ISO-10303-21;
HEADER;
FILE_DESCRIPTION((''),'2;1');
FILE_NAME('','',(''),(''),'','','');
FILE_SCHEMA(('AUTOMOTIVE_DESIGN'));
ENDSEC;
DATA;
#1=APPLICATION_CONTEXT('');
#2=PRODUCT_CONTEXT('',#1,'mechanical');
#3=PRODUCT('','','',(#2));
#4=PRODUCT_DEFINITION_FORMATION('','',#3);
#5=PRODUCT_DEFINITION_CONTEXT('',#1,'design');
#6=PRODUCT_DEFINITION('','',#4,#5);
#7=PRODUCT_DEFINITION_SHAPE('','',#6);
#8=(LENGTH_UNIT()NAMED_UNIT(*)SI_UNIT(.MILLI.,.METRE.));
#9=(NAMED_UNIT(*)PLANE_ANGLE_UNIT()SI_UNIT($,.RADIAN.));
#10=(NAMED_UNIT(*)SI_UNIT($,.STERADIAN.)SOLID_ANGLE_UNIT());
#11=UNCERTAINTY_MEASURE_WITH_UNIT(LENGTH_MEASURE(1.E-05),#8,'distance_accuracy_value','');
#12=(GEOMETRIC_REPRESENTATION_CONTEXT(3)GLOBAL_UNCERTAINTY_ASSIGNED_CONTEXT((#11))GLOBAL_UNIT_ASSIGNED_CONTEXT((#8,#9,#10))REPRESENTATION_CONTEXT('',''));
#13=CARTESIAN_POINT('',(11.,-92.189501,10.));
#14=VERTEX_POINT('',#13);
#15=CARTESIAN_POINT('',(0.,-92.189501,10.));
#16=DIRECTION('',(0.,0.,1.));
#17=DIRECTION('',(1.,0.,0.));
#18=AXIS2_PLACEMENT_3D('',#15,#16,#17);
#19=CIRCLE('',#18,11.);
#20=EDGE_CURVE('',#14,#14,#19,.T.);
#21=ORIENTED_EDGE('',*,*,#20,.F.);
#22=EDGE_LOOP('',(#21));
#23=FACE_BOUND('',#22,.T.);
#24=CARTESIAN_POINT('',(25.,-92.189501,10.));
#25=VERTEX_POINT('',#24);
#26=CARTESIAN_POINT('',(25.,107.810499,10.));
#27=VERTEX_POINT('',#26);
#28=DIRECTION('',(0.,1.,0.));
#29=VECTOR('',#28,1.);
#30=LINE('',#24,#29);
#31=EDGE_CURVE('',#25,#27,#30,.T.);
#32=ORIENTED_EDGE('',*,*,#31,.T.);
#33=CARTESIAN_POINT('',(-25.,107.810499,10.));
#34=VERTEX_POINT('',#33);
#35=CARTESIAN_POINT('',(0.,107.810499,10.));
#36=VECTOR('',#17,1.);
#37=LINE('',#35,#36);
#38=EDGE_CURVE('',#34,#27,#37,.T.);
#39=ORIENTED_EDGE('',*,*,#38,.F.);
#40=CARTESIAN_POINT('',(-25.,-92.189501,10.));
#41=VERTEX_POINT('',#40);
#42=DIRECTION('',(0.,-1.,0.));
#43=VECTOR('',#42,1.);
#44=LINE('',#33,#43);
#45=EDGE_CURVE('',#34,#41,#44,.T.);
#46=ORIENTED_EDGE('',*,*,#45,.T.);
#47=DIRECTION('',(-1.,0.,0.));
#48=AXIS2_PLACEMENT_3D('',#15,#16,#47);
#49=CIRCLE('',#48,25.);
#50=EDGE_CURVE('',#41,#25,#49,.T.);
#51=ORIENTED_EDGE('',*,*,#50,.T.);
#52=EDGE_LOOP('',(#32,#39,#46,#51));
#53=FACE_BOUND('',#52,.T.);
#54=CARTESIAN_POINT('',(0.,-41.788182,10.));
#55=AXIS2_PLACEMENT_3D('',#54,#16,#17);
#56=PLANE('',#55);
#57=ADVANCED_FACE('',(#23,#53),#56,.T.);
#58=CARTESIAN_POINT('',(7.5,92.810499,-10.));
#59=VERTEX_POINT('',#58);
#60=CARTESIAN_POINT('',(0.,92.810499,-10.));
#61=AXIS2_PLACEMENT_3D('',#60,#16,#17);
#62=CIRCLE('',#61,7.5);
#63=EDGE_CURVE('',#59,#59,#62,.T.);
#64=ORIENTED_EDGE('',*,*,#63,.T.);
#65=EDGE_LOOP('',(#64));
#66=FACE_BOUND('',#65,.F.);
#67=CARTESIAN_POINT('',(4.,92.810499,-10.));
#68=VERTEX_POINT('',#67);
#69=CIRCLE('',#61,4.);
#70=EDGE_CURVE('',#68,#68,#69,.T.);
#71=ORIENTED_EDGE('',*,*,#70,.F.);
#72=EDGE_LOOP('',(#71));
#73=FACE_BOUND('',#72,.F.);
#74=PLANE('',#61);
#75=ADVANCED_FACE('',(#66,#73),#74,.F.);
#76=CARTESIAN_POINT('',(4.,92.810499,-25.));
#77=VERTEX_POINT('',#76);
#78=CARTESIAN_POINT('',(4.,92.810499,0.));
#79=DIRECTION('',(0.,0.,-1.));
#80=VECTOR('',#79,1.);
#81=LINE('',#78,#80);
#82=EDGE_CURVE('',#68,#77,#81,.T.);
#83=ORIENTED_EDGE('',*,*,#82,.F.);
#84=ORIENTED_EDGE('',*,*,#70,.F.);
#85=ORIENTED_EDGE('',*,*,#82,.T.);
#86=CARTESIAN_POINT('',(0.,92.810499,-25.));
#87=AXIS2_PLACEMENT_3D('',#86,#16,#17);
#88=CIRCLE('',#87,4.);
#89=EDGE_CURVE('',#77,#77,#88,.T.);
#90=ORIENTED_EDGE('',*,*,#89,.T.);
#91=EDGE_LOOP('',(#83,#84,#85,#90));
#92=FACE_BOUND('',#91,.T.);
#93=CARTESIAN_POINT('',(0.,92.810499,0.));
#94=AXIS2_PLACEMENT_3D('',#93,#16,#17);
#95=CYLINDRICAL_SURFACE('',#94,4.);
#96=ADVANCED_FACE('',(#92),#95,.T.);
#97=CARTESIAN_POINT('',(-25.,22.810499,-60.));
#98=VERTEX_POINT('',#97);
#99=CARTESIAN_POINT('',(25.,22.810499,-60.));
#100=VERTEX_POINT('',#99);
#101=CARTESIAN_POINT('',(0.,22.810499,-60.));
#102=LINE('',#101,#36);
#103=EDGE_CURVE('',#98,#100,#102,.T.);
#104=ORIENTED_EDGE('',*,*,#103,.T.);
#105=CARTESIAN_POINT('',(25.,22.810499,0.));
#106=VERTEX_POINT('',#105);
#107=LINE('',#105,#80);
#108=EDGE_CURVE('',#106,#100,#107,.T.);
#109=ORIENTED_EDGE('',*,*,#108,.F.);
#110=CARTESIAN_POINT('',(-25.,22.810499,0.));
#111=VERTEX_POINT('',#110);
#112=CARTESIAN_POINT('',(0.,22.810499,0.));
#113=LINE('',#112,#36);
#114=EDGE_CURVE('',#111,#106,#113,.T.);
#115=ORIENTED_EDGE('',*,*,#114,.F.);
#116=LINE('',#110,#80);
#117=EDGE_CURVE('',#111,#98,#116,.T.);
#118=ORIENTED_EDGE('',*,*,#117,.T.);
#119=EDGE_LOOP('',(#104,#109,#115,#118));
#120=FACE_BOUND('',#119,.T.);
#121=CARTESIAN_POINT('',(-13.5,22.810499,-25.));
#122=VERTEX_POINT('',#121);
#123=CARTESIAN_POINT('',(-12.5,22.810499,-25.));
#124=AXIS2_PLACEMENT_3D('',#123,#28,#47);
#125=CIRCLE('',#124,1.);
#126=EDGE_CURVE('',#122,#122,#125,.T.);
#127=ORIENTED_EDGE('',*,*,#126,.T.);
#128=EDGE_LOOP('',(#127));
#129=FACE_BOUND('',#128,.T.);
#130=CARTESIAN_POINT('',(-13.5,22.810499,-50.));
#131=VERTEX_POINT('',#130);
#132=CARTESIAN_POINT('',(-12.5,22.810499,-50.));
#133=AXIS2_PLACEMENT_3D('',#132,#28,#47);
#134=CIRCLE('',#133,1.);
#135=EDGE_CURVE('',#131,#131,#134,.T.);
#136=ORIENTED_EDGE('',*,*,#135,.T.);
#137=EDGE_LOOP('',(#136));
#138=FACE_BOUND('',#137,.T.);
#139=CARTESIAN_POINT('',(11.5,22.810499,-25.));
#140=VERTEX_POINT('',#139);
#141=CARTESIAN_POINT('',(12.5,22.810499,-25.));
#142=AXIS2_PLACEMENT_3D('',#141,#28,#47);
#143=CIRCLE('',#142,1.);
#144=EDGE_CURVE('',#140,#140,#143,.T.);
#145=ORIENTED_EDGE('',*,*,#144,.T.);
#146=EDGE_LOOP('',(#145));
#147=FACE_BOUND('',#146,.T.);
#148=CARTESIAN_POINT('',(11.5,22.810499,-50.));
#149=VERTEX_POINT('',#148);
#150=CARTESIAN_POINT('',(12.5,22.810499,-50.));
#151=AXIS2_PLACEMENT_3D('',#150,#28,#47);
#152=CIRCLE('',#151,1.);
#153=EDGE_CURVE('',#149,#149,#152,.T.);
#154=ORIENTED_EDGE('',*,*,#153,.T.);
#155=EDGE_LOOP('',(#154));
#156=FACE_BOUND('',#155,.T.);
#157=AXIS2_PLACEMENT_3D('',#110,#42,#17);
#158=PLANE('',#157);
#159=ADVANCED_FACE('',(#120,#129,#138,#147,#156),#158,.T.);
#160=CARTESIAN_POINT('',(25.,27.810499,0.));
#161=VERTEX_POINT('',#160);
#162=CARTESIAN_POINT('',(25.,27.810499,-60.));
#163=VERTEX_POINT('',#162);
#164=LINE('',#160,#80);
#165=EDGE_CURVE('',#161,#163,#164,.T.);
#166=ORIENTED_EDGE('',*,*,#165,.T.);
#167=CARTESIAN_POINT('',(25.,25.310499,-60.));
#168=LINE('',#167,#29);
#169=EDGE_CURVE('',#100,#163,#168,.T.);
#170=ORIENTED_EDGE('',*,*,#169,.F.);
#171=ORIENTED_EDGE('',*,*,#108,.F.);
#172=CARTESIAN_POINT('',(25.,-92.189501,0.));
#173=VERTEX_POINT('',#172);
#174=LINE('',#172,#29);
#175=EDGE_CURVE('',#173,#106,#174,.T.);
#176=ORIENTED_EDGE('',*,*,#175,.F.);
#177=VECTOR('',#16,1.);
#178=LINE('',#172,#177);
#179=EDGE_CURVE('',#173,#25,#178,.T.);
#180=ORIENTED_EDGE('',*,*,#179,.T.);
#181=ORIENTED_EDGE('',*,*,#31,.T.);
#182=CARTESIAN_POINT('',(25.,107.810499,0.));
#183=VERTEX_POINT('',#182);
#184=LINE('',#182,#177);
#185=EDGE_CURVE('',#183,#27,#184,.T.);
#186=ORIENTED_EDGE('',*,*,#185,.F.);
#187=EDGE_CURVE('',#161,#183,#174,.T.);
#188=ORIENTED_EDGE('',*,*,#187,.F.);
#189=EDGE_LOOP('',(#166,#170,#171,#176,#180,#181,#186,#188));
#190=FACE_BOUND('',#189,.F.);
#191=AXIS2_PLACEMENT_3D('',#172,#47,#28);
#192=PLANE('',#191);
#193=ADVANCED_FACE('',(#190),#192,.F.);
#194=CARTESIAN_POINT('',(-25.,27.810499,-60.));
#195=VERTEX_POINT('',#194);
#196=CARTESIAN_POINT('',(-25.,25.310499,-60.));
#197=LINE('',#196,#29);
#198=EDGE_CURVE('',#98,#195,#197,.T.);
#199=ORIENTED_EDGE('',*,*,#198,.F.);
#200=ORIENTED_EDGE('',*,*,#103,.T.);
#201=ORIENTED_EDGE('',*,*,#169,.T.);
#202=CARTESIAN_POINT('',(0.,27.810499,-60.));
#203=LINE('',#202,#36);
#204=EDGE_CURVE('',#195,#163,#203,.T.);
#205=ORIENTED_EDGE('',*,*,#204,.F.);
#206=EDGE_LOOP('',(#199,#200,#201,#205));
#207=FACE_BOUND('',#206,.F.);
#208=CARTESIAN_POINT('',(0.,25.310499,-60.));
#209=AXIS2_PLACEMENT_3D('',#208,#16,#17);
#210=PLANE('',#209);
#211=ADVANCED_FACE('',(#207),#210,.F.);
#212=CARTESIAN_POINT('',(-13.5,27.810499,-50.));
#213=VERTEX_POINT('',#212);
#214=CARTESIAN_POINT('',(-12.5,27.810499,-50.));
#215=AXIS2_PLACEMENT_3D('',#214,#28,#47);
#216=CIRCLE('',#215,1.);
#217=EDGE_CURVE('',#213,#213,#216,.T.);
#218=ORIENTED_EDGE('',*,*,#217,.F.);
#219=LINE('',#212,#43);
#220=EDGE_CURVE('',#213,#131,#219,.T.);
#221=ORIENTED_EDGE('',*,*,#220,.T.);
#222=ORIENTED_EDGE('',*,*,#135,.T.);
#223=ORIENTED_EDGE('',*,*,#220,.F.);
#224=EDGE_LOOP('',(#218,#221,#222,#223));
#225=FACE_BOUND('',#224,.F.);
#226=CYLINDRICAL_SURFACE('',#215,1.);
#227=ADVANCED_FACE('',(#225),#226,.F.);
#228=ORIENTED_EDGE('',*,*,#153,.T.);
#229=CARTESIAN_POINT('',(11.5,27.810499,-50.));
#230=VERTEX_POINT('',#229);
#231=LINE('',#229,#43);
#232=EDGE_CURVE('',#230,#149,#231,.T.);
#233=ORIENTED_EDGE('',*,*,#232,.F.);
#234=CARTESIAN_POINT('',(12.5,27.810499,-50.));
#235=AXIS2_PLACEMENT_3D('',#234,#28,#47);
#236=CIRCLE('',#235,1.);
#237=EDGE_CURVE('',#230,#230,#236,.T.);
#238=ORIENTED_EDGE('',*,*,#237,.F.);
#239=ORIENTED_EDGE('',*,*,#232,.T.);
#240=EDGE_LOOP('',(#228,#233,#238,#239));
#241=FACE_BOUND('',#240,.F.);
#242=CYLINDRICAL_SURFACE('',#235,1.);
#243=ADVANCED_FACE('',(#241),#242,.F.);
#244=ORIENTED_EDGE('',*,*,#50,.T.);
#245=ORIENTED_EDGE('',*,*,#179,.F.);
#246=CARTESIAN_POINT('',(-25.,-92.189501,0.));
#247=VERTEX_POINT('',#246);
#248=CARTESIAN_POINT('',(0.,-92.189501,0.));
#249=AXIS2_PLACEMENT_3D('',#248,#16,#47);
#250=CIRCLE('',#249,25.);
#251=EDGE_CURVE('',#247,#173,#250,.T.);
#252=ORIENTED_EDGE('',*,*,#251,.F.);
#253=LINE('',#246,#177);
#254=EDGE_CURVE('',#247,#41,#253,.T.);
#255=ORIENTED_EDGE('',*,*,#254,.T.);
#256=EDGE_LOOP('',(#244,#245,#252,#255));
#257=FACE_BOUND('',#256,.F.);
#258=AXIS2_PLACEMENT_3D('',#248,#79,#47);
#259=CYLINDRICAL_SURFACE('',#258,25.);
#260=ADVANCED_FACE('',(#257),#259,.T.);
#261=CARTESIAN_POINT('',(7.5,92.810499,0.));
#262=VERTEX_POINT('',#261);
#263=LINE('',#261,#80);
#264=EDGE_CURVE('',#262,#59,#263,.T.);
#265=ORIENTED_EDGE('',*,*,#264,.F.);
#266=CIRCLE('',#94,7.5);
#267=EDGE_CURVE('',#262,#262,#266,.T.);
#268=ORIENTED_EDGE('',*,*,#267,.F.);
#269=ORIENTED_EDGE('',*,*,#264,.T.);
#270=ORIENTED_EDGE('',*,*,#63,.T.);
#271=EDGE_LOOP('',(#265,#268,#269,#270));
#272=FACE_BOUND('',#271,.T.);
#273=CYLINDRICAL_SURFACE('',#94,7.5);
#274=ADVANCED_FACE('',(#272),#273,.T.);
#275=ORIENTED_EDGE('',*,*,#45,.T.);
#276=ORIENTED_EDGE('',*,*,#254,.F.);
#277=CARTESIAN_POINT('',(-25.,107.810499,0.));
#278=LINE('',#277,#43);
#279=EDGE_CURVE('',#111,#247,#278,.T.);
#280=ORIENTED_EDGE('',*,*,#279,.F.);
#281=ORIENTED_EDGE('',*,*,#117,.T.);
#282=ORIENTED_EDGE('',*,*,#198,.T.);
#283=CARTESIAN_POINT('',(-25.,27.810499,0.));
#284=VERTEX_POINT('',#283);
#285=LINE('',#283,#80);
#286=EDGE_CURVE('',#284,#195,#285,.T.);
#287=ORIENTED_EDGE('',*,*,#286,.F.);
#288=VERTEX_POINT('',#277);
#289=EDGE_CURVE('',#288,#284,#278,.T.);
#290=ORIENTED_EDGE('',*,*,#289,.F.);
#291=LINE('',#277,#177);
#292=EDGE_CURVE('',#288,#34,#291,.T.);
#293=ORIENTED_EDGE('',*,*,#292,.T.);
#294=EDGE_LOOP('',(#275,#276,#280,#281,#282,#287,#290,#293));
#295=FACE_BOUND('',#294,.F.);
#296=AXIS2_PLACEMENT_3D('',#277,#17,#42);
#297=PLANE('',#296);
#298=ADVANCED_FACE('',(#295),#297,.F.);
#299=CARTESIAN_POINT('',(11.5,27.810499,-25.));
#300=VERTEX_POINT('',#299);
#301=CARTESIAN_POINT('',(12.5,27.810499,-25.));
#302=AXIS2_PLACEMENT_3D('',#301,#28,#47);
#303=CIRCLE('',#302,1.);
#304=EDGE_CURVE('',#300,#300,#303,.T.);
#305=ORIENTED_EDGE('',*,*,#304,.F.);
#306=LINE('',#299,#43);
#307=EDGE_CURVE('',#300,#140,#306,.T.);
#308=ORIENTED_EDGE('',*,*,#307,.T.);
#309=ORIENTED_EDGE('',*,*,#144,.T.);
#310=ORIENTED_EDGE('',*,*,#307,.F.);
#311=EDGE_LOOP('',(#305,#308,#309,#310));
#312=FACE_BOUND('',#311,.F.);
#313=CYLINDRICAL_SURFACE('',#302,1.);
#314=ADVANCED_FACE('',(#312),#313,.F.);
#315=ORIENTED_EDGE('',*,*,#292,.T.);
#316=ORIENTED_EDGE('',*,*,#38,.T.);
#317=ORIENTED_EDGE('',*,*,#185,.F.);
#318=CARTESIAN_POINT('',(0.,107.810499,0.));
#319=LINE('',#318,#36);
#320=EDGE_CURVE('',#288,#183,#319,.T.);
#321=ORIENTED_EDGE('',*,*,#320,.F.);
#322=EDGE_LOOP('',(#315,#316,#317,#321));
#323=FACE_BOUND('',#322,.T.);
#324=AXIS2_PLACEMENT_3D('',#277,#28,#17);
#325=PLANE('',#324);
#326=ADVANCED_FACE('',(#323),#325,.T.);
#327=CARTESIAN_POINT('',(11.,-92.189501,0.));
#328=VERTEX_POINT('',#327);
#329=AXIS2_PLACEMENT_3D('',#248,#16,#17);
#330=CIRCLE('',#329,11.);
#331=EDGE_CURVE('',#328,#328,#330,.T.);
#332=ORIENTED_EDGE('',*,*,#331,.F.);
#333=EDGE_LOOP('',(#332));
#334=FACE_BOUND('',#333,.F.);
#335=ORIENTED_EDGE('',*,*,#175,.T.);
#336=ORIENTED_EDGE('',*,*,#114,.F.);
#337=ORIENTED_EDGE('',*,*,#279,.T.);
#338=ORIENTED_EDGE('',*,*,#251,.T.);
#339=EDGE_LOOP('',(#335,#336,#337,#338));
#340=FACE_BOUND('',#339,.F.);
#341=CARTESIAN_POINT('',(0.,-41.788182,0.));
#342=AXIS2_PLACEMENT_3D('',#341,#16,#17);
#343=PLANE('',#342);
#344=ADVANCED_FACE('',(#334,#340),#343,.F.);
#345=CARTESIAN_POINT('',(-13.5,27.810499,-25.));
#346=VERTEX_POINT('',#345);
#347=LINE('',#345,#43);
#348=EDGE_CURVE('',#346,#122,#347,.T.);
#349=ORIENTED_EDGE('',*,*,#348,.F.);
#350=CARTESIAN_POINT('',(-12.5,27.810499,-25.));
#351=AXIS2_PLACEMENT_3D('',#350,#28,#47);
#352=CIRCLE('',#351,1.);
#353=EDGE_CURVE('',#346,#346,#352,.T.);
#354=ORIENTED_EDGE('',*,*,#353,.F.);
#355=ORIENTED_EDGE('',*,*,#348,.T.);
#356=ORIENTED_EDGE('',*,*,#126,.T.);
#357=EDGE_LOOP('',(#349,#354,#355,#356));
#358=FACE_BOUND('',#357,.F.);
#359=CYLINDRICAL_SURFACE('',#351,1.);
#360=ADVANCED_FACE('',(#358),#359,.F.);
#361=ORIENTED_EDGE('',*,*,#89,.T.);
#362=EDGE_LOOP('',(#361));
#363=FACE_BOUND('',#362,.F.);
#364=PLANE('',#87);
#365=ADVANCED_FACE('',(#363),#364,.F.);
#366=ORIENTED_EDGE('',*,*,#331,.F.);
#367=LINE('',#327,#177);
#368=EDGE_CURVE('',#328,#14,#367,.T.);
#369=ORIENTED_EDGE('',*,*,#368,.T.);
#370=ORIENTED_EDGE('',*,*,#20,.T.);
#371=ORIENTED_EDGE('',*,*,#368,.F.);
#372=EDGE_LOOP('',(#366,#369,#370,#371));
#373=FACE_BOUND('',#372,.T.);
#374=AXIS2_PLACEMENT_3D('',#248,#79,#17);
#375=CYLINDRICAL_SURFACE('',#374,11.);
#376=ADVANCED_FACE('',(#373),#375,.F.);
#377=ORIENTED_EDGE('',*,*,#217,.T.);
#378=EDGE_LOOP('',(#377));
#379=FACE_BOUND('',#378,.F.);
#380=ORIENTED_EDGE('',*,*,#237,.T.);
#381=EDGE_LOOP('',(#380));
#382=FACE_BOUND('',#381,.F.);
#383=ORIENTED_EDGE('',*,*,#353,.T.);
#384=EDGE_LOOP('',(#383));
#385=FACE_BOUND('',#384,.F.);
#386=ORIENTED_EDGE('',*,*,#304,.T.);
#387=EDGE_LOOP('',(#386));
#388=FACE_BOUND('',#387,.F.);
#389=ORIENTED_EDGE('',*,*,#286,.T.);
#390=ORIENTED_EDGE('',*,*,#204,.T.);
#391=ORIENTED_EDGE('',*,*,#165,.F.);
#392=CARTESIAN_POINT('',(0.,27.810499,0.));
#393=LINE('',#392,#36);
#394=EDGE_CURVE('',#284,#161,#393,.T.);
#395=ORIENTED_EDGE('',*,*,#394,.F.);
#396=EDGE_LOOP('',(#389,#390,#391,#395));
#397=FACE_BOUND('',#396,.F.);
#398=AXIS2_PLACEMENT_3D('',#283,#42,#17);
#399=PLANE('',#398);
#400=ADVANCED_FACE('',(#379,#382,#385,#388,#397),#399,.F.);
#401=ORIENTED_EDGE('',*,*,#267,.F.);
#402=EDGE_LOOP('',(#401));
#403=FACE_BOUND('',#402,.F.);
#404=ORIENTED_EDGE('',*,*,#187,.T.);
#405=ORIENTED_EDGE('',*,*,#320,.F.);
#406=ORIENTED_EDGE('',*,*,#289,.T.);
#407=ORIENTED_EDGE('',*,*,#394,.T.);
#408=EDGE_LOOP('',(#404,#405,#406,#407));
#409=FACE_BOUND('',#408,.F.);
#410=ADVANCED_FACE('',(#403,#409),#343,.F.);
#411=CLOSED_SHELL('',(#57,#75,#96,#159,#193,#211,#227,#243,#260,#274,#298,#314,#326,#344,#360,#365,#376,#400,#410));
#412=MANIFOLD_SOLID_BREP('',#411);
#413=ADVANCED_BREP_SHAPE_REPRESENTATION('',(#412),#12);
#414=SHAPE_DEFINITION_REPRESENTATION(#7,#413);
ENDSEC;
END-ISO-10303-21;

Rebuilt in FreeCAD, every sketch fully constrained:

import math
import FreeCAD as App
import Part
import Sketcher
from FreeCAD import Vector
Q = App.Units.Quantity

doc = App.newDocument("Part")
body = doc.addObject("PartDesign::Body", "Body")

sketch1 = doc.addObject("Sketcher::SketchObject", "Sketch")
body.addObject(sketch1)
sketch1.AttachmentSupport = (doc.XY_Plane, [""])
sketch1.MapMode = "FlatFace"
sketch1.addGeometry(Part.ArcOfCircle(Part.Circle(Vector(0, -92.189501, 0), Vector(0, 0, 1), 25), math.radians(180), math.radians(360)), False)
sketch1.addGeometry(Part.LineSegment(Vector(25, -92.189501, 0), Vector(25, 107.810499, 0)), False)
sketch1.addGeometry(Part.LineSegment(Vector(25, 107.810499, 0), Vector(-25, 107.810499, 0)), False)
sketch1.addGeometry(Part.LineSegment(Vector(-25, 107.810499, 0), Vector(-25, -92.189501, 0)), False)
sketch1.addGeometry(Part.Circle(Vector(0, -92.189501, 0), Vector(0, 0, 1), 11), False)
sketch1.addConstraint(Sketcher.Constraint("Tangent", 0, 2, 1, 1))
sketch1.addConstraint(Sketcher.Constraint("Coincident", 1, 2, 2, 1))
sketch1.addConstraint(Sketcher.Constraint("Coincident", 2, 2, 3, 1))
sketch1.addConstraint(Sketcher.Constraint("Tangent", 3, 2, 0, 1))
sketch1.addConstraint(Sketcher.Constraint("Vertical", 1))
sketch1.addConstraint(Sketcher.Constraint("Horizontal", 2))
sketch1.addConstraint(Sketcher.Constraint("Vertical", 3))
sketch1.addConstraint(Sketcher.Constraint("Coincident", 4, 3, 0, 3))
sketch1.addConstraint(Sketcher.Constraint("PointOnObject", 0, 3, -2))
sketch1.addConstraint(Sketcher.Constraint("Diameter", 4, Q("22 mm")))
sketch1.addConstraint(Sketcher.Constraint("Radius", 0, Q("25 mm")))
sketch1.addConstraint(Sketcher.Constraint("DistanceY", 1, 1, 1, 2, Q("200 mm")))
sketch1.addConstraint(Sketcher.Constraint("DistanceY", 0, 3, -1, 1, Q("92.189501 mm")))
pad1 = doc.addObject("PartDesign::Pad", "Pad")
body.addObject(pad1)
pad1.Profile = sketch1
pad1.Length = 10

sketch2 = doc.addObject("Sketcher::SketchObject", "Sketch001")
body.addObject(sketch2)
sketch2.AttachmentSupport = (doc.XY_Plane, [""])
sketch2.MapMode = "FlatFace"
sketch2.addGeometry(Part.LineSegment(Vector(-25, 27.810499, 0), Vector(-25, 22.810499, 0)), False)
sketch2.addGeometry(Part.LineSegment(Vector(-25, 22.810499, 0), Vector(25, 22.810499, 0)), False)
sketch2.addGeometry(Part.LineSegment(Vector(25, 22.810499, 0), Vector(25, 27.810499, 0)), False)
sketch2.addGeometry(Part.LineSegment(Vector(25, 27.810499, 0), Vector(-25, 27.810499, 0)), False)
sketch2.addConstraint(Sketcher.Constraint("Coincident", 0, 2, 1, 1))
sketch2.addConstraint(Sketcher.Constraint("Coincident", 1, 2, 2, 1))
sketch2.addConstraint(Sketcher.Constraint("Coincident", 2, 2, 3, 1))
sketch2.addConstraint(Sketcher.Constraint("Coincident", 3, 2, 0, 1))
sketch2.addConstraint(Sketcher.Constraint("Vertical", 0))
sketch2.addConstraint(Sketcher.Constraint("Horizontal", 1))
sketch2.addConstraint(Sketcher.Constraint("Vertical", 2))
sketch2.addConstraint(Sketcher.Constraint("Horizontal", 3))
sketch2.addConstraint(Sketcher.Constraint("DistanceX", 1, 1, 1, 2, Q("50 mm")))
sketch2.addConstraint(Sketcher.Constraint("DistanceY", 0, 2, 0, 1, Q("5 mm")))
sketch2.addConstraint(Sketcher.Constraint("DistanceX", 0, 2, -1, 1, Q("25 mm")))
sketch2.addConstraint(Sketcher.Constraint("DistanceY", -1, 1, 0, 2, Q("22.810499 mm")))
pad2 = doc.addObject("PartDesign::Pad", "Pad001")
body.addObject(pad2)
pad2.Profile = sketch2
pad2.Length = 60
pad2.Reversed = True

sketch3 = doc.addObject("Sketcher::SketchObject", "Sketch002")
body.addObject(sketch3)
sketch3.AttachmentSupport = (doc.XY_Plane, [""])
sketch3.MapMode = "FlatFace"
sketch3.addGeometry(Part.Circle(Vector(0, 92.810499, 0), Vector(0, 0, 1), 7.5), False)
sketch3.addGeometry(Part.Circle(Vector(0, 92.810499, 0), Vector(0, 0, 1), 4), False)
sketch3.addConstraint(Sketcher.Constraint("Coincident", 1, 3, 0, 3))
sketch3.addConstraint(Sketcher.Constraint("PointOnObject", 0, 3, -2))
sketch3.addConstraint(Sketcher.Constraint("Diameter", 0, Q("15 mm")))
sketch3.addConstraint(Sketcher.Constraint("Diameter", 1, Q("8 mm")))
sketch3.addConstraint(Sketcher.Constraint("DistanceY", -1, 1, 0, 3, Q("92.810499 mm")))
pad3 = doc.addObject("PartDesign::Pad", "Pad002")
body.addObject(pad3)
pad3.Profile = sketch3
pad3.Length = 10
pad3.Reversed = True

sketch4 = doc.addObject("Sketcher::SketchObject", "Sketch003")
body.addObject(sketch4)
sketch4.AttachmentSupport = (doc.XY_Plane, [""])
sketch4.MapMode = "FlatFace"
sketch4.addGeometry(Part.Circle(Vector(0, 92.810499, 0), Vector(0, 0, 1), 4), False)
sketch4.addConstraint(Sketcher.Constraint("PointOnObject", 0, 3, -2))
sketch4.addConstraint(Sketcher.Constraint("Diameter", 0, Q("8 mm")))
sketch4.addConstraint(Sketcher.Constraint("DistanceY", -1, 1, 0, 3, Q("92.810499 mm")))
pad4 = doc.addObject("PartDesign::Pad", "Pad003")
body.addObject(pad4)
pad4.Profile = sketch4
pad4.Length = 25
pad4.Reversed = True

sketch5 = doc.addObject("Sketcher::SketchObject", "Sketch004")
body.addObject(sketch5)
sketch5.AttachmentSupport = (doc.XZ_Plane, [""])
sketch5.MapMode = "FlatFace"
sketch5.AttachmentOffset = App.Placement(Vector(0, 0, -27.810499), App.Rotation())
sketch5.addGeometry(Part.Circle(Vector(12.5, -25, 0), Vector(0, 0, 1), 1), False)
sketch5.addGeometry(Part.Circle(Vector(-12.5, -25, 0), Vector(0, 0, 1), 1), False)
sketch5.addGeometry(Part.Circle(Vector(12.5, -50, 0), Vector(0, 0, 1), 1), False)
sketch5.addGeometry(Part.Circle(Vector(-12.5, -50, 0), Vector(0, 0, 1), 1), False)
sketch5.addConstraint(Sketcher.Constraint("Equal", 0, 1))
sketch5.addConstraint(Sketcher.Constraint("Equal", 1, 2))
sketch5.addConstraint(Sketcher.Constraint("Equal", 2, 3))
sketch5.addConstraint(Sketcher.Constraint("Symmetric", 0, 3, 1, 3, -2))
sketch5.addConstraint(Sketcher.Constraint("Symmetric", 2, 3, 3, 3, -2))
sketch5.addConstraint(Sketcher.Constraint("Vertical", 0, 3, 2, 3))
sketch5.addConstraint(Sketcher.Constraint("Diameter", 0, Q("2 mm")))
sketch5.addConstraint(Sketcher.Constraint("DistanceY", 0, 3, -1, 1, Q("25 mm")))
sketch5.addConstraint(Sketcher.Constraint("DistanceY", 2, 3, -1, 1, Q("50 mm")))
sketch5.addConstraint(Sketcher.Constraint("DistanceX", 1, 3, 0, 3, Q("25 mm")))
pocket1 = doc.addObject("PartDesign::Pocket", "Pocket")
body.addObject(pocket1)
pocket1.Profile = sketch5
pocket1.Length = 25
pocket1.Reversed = True

doc.recompute()
